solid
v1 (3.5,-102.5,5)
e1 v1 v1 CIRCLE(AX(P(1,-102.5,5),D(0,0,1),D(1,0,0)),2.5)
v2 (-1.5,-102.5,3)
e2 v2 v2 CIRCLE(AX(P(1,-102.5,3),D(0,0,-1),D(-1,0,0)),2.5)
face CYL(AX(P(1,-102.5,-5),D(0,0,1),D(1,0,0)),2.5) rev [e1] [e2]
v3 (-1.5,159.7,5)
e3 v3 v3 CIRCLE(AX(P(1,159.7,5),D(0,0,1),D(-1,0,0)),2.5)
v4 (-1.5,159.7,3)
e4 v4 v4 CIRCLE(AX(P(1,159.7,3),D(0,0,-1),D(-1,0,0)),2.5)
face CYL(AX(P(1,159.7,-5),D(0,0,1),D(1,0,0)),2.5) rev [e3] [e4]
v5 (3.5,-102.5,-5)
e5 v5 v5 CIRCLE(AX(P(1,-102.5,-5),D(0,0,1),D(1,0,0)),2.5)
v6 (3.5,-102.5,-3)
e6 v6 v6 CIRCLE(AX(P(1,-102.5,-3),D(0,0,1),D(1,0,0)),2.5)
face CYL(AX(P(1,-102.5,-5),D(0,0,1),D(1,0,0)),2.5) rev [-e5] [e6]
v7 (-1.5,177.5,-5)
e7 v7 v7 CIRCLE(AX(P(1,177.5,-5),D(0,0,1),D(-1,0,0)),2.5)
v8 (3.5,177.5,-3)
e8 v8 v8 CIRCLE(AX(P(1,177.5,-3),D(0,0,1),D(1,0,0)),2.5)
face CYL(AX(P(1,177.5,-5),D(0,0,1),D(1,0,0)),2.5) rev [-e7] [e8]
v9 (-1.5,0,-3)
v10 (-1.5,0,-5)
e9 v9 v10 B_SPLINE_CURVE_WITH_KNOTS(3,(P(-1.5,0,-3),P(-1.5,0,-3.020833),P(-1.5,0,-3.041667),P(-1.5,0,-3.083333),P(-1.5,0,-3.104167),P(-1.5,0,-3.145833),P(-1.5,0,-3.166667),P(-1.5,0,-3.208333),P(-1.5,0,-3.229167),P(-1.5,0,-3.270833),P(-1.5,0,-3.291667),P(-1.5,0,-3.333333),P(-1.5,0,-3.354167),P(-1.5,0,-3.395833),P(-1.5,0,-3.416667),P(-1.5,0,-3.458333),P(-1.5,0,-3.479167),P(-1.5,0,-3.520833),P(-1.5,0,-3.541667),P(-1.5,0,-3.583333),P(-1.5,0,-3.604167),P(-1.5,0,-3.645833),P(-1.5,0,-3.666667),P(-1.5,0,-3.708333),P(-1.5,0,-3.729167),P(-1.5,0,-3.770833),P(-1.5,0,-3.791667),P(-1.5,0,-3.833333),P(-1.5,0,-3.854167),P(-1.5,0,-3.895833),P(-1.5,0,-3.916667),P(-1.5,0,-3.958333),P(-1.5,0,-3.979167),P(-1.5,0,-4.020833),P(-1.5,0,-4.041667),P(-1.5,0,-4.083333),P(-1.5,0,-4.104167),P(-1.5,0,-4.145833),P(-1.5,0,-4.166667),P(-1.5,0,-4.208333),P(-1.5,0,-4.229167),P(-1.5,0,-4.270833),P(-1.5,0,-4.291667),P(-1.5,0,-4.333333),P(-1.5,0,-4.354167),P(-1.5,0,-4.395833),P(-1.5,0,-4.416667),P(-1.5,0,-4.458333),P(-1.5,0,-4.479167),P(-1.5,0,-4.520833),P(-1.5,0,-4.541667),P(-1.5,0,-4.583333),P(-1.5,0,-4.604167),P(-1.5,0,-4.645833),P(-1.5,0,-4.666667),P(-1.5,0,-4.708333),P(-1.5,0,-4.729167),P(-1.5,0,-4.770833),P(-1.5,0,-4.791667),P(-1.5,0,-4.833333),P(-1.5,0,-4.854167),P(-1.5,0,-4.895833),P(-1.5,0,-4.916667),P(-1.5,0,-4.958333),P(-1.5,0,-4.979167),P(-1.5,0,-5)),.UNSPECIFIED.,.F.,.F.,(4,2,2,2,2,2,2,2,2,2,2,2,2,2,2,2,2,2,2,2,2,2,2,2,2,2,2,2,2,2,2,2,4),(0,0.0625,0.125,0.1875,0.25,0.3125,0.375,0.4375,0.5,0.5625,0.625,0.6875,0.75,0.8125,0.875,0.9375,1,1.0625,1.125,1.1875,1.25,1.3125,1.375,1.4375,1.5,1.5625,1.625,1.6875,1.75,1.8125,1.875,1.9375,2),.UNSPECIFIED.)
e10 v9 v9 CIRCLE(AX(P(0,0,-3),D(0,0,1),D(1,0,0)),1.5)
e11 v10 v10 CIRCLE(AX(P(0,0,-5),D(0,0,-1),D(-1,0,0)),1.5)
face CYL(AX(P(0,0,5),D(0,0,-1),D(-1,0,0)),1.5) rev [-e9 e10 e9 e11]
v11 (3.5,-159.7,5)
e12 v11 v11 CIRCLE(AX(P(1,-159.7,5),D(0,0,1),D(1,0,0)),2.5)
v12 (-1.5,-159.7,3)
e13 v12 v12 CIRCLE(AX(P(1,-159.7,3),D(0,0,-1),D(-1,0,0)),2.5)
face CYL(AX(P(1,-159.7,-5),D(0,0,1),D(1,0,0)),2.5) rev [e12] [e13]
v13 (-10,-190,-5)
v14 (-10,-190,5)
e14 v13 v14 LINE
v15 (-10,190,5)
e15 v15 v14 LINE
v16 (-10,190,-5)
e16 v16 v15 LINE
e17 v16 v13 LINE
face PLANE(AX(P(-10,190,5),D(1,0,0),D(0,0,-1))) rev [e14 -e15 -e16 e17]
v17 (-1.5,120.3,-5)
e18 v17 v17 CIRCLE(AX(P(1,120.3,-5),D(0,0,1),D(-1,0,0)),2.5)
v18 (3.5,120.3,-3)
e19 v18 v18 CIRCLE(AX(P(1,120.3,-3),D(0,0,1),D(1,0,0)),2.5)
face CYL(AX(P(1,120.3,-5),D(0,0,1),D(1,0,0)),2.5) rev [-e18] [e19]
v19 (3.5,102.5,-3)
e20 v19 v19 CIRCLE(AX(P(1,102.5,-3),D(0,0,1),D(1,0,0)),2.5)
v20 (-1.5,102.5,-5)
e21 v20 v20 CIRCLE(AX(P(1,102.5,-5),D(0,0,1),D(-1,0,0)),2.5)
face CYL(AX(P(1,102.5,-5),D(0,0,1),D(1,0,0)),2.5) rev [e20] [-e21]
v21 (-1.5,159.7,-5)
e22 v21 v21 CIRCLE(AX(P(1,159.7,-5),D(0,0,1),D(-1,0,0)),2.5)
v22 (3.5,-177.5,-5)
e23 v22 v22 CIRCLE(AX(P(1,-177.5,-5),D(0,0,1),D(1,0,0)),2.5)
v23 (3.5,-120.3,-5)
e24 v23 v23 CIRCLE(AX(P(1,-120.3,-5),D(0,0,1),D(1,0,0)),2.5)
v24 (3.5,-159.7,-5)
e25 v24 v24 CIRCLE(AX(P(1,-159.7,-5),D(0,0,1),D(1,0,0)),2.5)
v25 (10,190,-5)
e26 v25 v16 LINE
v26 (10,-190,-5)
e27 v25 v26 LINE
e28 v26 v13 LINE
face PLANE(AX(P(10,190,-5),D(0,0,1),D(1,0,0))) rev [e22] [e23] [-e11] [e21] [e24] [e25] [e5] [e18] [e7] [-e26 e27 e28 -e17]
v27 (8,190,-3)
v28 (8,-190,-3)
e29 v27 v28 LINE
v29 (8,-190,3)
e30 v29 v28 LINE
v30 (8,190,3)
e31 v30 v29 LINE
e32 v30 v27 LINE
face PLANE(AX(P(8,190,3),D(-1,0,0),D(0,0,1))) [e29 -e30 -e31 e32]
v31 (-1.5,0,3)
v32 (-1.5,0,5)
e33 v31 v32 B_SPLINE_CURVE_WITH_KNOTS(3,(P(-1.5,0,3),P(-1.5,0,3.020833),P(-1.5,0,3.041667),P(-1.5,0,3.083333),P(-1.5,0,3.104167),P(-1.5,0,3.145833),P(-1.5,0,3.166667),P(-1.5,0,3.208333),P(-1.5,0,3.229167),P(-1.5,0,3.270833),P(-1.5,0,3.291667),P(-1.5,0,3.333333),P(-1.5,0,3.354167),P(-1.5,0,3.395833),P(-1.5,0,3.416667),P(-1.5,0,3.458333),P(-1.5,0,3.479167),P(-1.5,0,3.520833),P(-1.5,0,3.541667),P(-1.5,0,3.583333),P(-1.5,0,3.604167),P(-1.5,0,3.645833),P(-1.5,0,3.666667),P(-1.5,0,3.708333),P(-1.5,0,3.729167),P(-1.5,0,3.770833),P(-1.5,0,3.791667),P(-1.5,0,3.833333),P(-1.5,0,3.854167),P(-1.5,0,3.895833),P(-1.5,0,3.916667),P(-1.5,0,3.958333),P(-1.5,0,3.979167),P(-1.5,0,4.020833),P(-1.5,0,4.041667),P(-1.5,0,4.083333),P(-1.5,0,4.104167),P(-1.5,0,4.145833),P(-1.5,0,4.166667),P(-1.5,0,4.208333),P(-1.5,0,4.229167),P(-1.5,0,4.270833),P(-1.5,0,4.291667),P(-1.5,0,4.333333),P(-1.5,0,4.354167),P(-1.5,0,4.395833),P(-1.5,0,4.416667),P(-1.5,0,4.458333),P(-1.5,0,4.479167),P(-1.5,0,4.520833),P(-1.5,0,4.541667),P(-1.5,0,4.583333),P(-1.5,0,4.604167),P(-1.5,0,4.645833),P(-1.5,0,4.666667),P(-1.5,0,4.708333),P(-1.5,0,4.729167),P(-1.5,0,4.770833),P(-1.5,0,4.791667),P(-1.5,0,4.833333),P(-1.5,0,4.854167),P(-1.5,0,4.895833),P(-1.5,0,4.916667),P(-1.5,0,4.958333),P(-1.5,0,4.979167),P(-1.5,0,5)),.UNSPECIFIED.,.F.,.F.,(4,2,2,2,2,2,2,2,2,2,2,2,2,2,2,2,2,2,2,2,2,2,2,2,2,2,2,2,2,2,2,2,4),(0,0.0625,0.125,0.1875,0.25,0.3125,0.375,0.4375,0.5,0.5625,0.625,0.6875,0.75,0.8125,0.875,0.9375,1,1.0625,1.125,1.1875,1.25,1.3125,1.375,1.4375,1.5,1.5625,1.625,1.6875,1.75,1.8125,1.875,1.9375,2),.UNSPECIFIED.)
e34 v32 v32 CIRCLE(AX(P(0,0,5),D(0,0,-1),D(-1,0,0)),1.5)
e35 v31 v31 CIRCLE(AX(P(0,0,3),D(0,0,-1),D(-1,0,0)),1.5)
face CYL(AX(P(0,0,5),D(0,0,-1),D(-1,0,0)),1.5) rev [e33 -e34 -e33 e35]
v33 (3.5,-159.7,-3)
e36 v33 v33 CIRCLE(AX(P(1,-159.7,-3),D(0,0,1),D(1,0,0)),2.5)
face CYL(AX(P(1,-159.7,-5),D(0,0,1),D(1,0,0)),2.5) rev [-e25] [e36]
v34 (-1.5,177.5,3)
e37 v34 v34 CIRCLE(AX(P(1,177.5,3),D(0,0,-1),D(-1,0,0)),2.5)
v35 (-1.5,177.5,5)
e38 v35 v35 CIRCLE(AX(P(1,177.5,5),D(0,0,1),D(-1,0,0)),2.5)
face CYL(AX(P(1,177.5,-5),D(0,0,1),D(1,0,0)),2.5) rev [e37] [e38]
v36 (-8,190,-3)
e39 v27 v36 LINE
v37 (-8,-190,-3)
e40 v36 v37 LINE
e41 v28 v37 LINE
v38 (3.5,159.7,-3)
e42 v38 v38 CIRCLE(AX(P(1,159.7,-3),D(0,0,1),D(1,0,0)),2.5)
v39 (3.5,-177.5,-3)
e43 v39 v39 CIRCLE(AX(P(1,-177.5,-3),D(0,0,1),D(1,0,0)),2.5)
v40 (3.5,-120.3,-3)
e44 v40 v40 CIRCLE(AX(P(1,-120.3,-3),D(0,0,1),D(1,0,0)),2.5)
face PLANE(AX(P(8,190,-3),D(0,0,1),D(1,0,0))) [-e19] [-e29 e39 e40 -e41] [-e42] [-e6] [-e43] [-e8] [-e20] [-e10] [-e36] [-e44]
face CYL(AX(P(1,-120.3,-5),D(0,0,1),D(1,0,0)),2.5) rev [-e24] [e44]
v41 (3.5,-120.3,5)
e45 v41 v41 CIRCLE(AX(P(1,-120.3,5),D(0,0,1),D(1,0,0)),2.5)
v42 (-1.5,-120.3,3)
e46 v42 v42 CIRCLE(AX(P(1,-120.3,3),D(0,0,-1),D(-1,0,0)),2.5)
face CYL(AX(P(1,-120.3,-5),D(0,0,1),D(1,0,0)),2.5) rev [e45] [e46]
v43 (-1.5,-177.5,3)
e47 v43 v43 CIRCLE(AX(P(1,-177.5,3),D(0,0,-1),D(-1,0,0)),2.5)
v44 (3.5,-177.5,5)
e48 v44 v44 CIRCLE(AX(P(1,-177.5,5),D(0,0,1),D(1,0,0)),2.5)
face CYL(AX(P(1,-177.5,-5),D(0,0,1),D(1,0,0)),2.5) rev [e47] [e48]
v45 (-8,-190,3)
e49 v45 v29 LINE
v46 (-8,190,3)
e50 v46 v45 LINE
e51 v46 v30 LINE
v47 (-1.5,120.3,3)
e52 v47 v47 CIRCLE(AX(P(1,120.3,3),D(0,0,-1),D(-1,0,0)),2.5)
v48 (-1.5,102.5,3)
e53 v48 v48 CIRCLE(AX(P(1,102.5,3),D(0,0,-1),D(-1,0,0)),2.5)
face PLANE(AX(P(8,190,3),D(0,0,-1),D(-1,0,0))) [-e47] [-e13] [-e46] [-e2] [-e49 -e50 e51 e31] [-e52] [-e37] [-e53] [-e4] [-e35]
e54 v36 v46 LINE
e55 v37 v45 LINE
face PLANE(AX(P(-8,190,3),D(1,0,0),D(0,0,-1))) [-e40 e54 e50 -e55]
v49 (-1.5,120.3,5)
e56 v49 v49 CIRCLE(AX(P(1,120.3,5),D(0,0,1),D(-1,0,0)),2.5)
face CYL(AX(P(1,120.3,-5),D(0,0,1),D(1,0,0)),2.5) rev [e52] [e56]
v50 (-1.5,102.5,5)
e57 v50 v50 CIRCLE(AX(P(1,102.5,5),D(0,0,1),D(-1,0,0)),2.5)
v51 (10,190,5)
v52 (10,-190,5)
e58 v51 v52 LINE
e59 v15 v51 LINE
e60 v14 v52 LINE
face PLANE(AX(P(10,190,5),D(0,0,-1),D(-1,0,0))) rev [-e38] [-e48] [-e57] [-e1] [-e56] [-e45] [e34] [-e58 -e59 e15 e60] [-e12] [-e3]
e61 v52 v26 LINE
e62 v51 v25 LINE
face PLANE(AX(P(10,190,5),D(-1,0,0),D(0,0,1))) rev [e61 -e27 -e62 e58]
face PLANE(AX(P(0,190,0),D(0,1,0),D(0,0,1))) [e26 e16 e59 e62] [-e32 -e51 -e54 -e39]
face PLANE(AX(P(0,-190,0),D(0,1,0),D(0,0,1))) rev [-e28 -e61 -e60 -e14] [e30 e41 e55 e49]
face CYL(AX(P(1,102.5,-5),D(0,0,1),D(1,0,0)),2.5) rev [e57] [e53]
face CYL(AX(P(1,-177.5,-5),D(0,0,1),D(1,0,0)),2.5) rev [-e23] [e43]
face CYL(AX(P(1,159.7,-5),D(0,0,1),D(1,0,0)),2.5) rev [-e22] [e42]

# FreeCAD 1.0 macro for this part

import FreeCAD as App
import Part
import Sketcher

V = App.Vector
Q = App.Units.Quantity

doc = App.newDocument("Part")
body = doc.addObject("PartDesign::Body", "Body")

# Sketch on XZ plane
sketch1 = body.newObject("Sketcher::SketchObject", "Sketch")
sketch1.AttachmentSupport = (doc.getObject("XZ_Plane"), [""])
sketch1.MapMode = "FlatFace"
sketch1.addGeometry([
    Part.LineSegment(V(-10, -5, 0), V(-10, 5, 0)),  # 0
    Part.LineSegment(V(-10, 5, 0), V(10, 5, 0)),  # 1
    Part.LineSegment(V(10, 5, 0), V(10, -5, 0)),  # 2
    Part.LineSegment(V(10, -5, 0), V(-10, -5, 0)),  # 3
    Part.LineSegment(V(8, 3, 0), V(-8, 3, 0)),  # 4
    Part.LineSegment(V(-8, 3, 0), V(-8, -3, 0)),  # 5
    Part.LineSegment(V(-8, -3, 0), V(8, -3, 0)),  # 6
    Part.LineSegment(V(8, -3, 0), V(8, 3, 0)),  # 7
], False)
sketch1.addConstraint([
    Sketcher.Constraint("Coincident", 0, 2, 1, 1),
    Sketcher.Constraint("Coincident", 1, 2, 2, 1),
    Sketcher.Constraint("Coincident", 2, 2, 3, 1),
    Sketcher.Constraint("Coincident", 3, 2, 0, 1),
    Sketcher.Constraint("Coincident", 4, 2, 5, 1),
    Sketcher.Constraint("Coincident", 5, 2, 6, 1),
    Sketcher.Constraint("Coincident", 6, 2, 7, 1),
    Sketcher.Constraint("Coincident", 7, 2, 4, 1),
    Sketcher.Constraint("Vertical", 0),
    Sketcher.Constraint("Horizontal", 1),
    Sketcher.Constraint("Vertical", 2),
    Sketcher.Constraint("Horizontal", 3),
    Sketcher.Constraint("Horizontal", 4),
    Sketcher.Constraint("Vertical", 5),
    Sketcher.Constraint("Horizontal", 6),
    Sketcher.Constraint("Vertical", 7),
    Sketcher.Constraint("Symmetric", 0, 2, 2, 2, -1, 1),
    Sketcher.Constraint("Symmetric", 4, 2, 6, 2, -1, 1),
    Sketcher.Constraint("DistanceX", 1, 1, 1, 2, Q("20 mm")),
    Sketcher.Constraint("DistanceX", 4, 2, 4, 1, Q("16 mm")),
    Sketcher.Constraint("DistanceY", 0, 1, 0, 2, Q("10 mm")),
    Sketcher.Constraint("DistanceY", 5, 2, 5, 1, Q("6 mm")),
])
pad1 = body.newObject("PartDesign::Pad", "Pad")
pad1.Profile = sketch1
pad1.Length = 380
pad1.Midplane = True

# Sketch on XY plane
sketch2 = body.newObject("Sketcher::SketchObject", "Sketch001")
sketch2.AttachmentSupport = (doc.getObject("XY_Plane"), [""])
sketch2.MapMode = "FlatFace"
sketch2.AttachmentOffset = App.Placement(V(0, 0, 5), App.Rotation())
sketch2.addGeometry([
    Part.Circle(V(1, -177.5, 0), V(0, 0, 1), 2.5),  # 0
    Part.Circle(V(1, -159.7, 0), V(0, 0, 1), 2.5),  # 1
    Part.Circle(V(1, -120.3, 0), V(0, 0, 1), 2.5),  # 2
    Part.Circle(V(1, -102.5, 0), V(0, 0, 1), 2.5),  # 3
    Part.Circle(V(1, 102.5, 0), V(0, 0, 1), 2.5),  # 4
    Part.Circle(V(1, 120.3, 0), V(0, 0, 1), 2.5),  # 5
    Part.Circle(V(1, 159.7, 0), V(0, 0, 1), 2.5),  # 6
    Part.Circle(V(1, 177.5, 0), V(0, 0, 1), 2.5),  # 7
], False)
sketch2.addConstraint([
    Sketcher.Constraint("Equal", 0, 1),
    Sketcher.Constraint("Equal", 1, 2),
    Sketcher.Constraint("Equal", 2, 3),
    Sketcher.Constraint("Equal", 3, 4),
    Sketcher.Constraint("Equal", 4, 5),
    Sketcher.Constraint("Equal", 5, 6),
    Sketcher.Constraint("Equal", 6, 7),
    Sketcher.Constraint("Symmetric", 3, 3, 4, 3, -1),
    Sketcher.Constraint("Symmetric", 2, 3, 5, 3, -1),
    Sketcher.Constraint("Symmetric", 1, 3, 6, 3, -1),
    Sketcher.Constraint("Symmetric", 0, 3, 7, 3, -1),
    Sketcher.Constraint("Vertical", 0, 3, 1, 3),
    Sketcher.Constraint("Vertical", 1, 3, 2, 3),
    Sketcher.Constraint("Vertical", 2, 3, 3, 3),
    Sketcher.Constraint("Diameter", 0, Q("5 mm")),
    Sketcher.Constraint("DistanceX", -1, 1, 0, 3, Q("1 mm")),
    Sketcher.Constraint("DistanceY", 0, 3, 3, 3, Q("75 mm")),
    Sketcher.Constraint("DistanceY", 3, 3, 4, 3, Q("205 mm")),
    Sketcher.Constraint("DistanceY", 1, 3, 5, 3, Q("280 mm")),
    Sketcher.Constraint("DistanceY", 1, 3, -1, 1, Q("159.7 mm")),
])
pocket1 = body.newObject("PartDesign::Pocket", "Pocket")
pocket1.Profile = sketch2
pocket1.Type = "ThroughAll"

# Sketch on XY plane
sketch3 = body.newObject("Sketcher::SketchObject", "Sketch002")
sketch3.AttachmentSupport = (doc.getObject("XY_Plane"), [""])
sketch3.MapMode = "FlatFace"
sketch3.AttachmentOffset = App.Placement(V(0, 0, -5), App.Rotation())
sketch3.addGeometry(Part.Circle(V(0, 0, 0), V(0, 0, 1), 1.5), False)
sketch3.addConstraint([
    Sketcher.Constraint("Coincident", 0, 3, -1, 1),
    Sketcher.Constraint("Diameter", 0, Q("3 mm")),
])
pocket2 = body.newObject("PartDesign::Pocket", "Pocket001")
pocket2.Profile = sketch3
pocket2.Type = "ThroughAll"
pocket2.Reversed = True

doc.recompute()
